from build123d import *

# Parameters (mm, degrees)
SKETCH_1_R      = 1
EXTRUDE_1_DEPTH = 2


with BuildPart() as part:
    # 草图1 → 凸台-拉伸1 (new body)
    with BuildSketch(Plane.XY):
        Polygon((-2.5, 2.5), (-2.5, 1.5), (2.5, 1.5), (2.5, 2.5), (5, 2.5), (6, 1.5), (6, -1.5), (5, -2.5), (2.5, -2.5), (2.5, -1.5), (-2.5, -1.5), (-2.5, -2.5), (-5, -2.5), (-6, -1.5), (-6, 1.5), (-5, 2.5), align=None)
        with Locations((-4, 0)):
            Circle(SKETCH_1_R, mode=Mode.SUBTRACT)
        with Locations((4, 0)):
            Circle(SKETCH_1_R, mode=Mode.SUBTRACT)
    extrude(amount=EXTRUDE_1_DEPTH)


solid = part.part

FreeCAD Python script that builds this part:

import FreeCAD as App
import Part
import Sketcher
from FreeCAD import Vector


def add_polygon(sketch, points):
    """Adds a closed chain of lines whose ends are joined by coincident constraints."""
    first, n = sketch.GeometryCount, len(points)
    for a, b in zip(points, points[1:] + points[:1]):
        sketch.addGeometry(Part.LineSegment(App.Vector(*a, 0), App.Vector(*b, 0)), False)
    for i in range(n):
        sketch.addConstraint(Sketcher.Constraint("Coincident", first + i, 2, first + (i + 1) % n, 1))

doc = App.newDocument("Part")
body = doc.addObject("PartDesign::Body", "Body")

sketch1 = body.newObject("Sketcher::SketchObject", "Sketch")
sketch1.AttachmentSupport = (doc.getObject("XY_Plane"), [""])
sketch1.MapMode = "FlatFace"
add_polygon(sketch1, [(-2.5, 1.5), (-2.5, 2.5), (-5, 2.5), (-6, 1.5), (-6, -1.5), (-5, -2.5), (-2.5, -2.5), (-2.5, -1.5), (2.5, -1.5), (2.5, -2.5), (5, -2.5), (6, -1.5), (6, 1.5), (5, 2.5), (2.5, 2.5), (2.5, 1.5)])
sketch1.addGeometry(Part.Circle(Vector(4, 0, 0), Vector(0, 0, 1), 1), False)
sketch1.addGeometry(Part.Circle(Vector(-4, 0, 0), Vector(0, 0, 1), 1), False)
sketch1.addConstraint(Sketcher.Constraint("Vertical", 0))
sketch1.addConstraint(Sketcher.Constraint("Horizontal", 1))
sketch1.addConstraint(Sketcher.Constraint("Vertical", 3))
sketch1.addConstraint(Sketcher.Constraint("Horizontal", 5))
sketch1.addConstraint(Sketcher.Constraint("Vertical", 6))
sketch1.addConstraint(Sketcher.Constraint("Horizontal", 7))
sketch1.addConstraint(Sketcher.Constraint("Vertical", 8))
sketch1.addConstraint(Sketcher.Constraint("Horizontal", 9))
sketch1.addConstraint(Sketcher.Constraint("Vertical", 11))
sketch1.addConstraint(Sketcher.Constraint("Horizontal", 13))
sketch1.addConstraint(Sketcher.Constraint("Vertical", 14))
sketch1.addConstraint(Sketcher.Constraint("Horizontal", 15))
sketch1.addConstraint(Sketcher.Constraint("Equal", 16, 17))
sketch1.addConstraint(Sketcher.Constraint("Symmetric", 16, 3, 17, 3, -1, 1))
sketch1.addConstraint(Sketcher.Constraint("Symmetric", 0, 2, 8, 2, -1, 1))
sketch1.addConstraint(Sketcher.Constraint("Symmetric", 2, 2, 10, 2, -1, 1))
sketch1.addConstraint(Sketcher.Constraint("Symmetric", 4, 2, 12, 2, -1, 1))
sketch1.addConstraint(Sketcher.Constraint("Symmetric", 6, 2, 14, 2, -1, 1))
sketch1.addConstraint(Sketcher.Constraint("Symmetric", 5, 2, 8, 2, -2))
sketch1.addConstraint(Sketcher.Constraint("PointOnObject", 16, 3, -1))
sketch1.addConstraint(Sketcher.Constraint("Perpendicular", 2, 4))
sketch1.addConstraint(Sketcher.Constraint("Perpendicular", 4, 10))
sketch1.addConstraint(Sketcher.Constraint("Perpendicular", 10, 12))
sketch1.addConstraint(Sketcher.Constraint("Horizontal", 3, 2, 6, 2))
sketch1.addConstraint(Sketcher.Constraint("Horizontal", 7, 2, 10, 2))
sketch1.addConstraint(Sketcher.Constraint("Vertical", 1, 2, 4, 2))
sketch1.addConstraint(Sketcher.Constraint("Diameter", 16, 2.0))
sketch1.addConstraint(Sketcher.Constraint("DistanceX", 7, 1, 7, 2, 5.0))
sketch1.addConstraint(Sketcher.Constraint("DistanceY", 0, 1, 0, 2, 1.0))
sketch1.addConstraint(Sketcher.Constraint("DistanceY", 3, 2, 3, 1, 3.0))
sketch1.addConstraint(Sketcher.Constraint("DistanceX", 1, 2, 1, 1, 2.5))
sketch1.addConstraint(Sketcher.Constraint("DistanceX", -1, 1, 16, 3, 4.0))
pad1 = body.newObject("PartDesign::Pad", "Pad")
pad1.Profile = sketch1
pad1.Length = 2

doc.recompute()
